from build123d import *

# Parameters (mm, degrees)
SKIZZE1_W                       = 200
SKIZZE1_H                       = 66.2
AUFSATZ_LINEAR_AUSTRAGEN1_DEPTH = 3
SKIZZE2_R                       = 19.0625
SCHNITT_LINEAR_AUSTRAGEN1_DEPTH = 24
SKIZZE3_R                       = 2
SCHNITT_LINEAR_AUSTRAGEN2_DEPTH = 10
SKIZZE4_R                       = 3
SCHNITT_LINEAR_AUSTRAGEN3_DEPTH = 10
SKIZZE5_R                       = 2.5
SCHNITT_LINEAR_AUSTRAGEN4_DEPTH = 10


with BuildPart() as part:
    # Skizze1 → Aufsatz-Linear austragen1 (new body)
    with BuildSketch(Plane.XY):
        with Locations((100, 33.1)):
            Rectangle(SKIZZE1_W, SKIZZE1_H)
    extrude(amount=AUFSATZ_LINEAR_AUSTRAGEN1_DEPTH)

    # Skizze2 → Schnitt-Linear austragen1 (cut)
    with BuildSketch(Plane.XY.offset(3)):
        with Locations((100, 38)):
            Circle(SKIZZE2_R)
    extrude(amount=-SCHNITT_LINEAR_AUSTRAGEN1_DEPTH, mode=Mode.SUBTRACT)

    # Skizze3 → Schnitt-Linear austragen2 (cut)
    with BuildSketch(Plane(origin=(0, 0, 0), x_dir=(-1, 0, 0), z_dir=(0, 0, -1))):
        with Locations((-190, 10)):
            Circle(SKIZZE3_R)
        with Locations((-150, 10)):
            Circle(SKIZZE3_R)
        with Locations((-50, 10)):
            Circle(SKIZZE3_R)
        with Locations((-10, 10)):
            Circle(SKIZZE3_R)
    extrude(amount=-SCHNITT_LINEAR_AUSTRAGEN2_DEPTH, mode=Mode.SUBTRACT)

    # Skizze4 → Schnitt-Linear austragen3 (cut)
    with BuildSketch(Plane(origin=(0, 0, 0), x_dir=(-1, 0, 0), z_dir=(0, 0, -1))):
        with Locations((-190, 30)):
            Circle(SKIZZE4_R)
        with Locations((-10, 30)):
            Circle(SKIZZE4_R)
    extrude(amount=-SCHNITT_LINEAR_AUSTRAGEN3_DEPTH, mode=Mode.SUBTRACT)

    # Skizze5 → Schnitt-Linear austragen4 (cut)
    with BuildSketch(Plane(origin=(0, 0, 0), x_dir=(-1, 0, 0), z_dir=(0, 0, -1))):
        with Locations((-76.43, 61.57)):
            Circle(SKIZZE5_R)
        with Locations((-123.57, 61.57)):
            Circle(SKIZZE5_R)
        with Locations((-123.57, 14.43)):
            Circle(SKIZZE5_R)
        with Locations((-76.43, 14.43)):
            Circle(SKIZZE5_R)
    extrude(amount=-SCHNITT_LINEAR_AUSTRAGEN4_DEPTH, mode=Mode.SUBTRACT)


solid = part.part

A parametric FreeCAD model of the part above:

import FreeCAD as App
import Part
import Sketcher

doc = App.newDocument("Part")
body = doc.addObject("PartDesign::Body", "Body")

# Sketch on XY plane
sketch1 = doc.addObject("Sketcher::SketchObject", "Sketch")
body.addObject(sketch1)
sketch1.AttachmentSupport = (doc.XY_Plane, [""])
sketch1.MapMode = "FlatFace"
sketch1.addGeometry([
    Part.LineSegment(App.Vector(0, 66, 0), App.Vector(0, 0, 0)),
    Part.LineSegment(App.Vector(0, 0, 0), App.Vector(200, 0, 0)),
    Part.LineSegment(App.Vector(200, 0, 0), App.Vector(200, 66, 0)),
    Part.LineSegment(App.Vector(200, 66, 0), App.Vector(0, 66, 0)),
], False)
sketch1.addConstraint([
    Sketcher.Constraint("Coincident", 0, 2, 1, 1),
    Sketcher.Constraint("Coincident", 1, 2, 2, 1),
    Sketcher.Constraint("Coincident", 2, 2, 3, 1),
    Sketcher.Constraint("Coincident", 3, 2, 0, 1),
    Sketcher.Constraint("Vertical", 0),
    Sketcher.Constraint("Horizontal", 1),
    Sketcher.Constraint("Vertical", 2),
    Sketcher.Constraint("Horizontal", 3),
    Sketcher.Constraint("Coincident", 0, 2, -1, 1),
    Sketcher.Constraint("DistanceX", 1, 1, 1, 2, 200.0),
    Sketcher.Constraint("DistanceY", 0, 2, 0, 1, 66.2),
])
pad1 = doc.addObject("PartDesign::Pad", "Pad")
body.addObject(pad1)
pad1.Profile = sketch1
pad1.Length = 3

# Sketch on XY plane
sketch2 = doc.addObject("Sketcher::SketchObject", "Sketch001")
body.addObject(sketch2)
sketch2.AttachmentSupport = (doc.XY_Plane, [""])
sketch2.MapMode = "FlatFace"
sketch2.AttachmentOffset = App.Placement(App.Vector(0, 0, 3), App.Rotation())
sketch2.addGeometry(Part.Circle(App.Vector(100, 38, 0), App.Vector(0, 0, 1), 19), False)
sketch2.addConstraint([
    Sketcher.Constraint("Diameter", 0, 38.125),
    Sketcher.Constraint("DistanceX", -1, 1, 0, 3, 100.0),
    Sketcher.Constraint("DistanceY", -1, 1, 0, 3, 38.0),
])
pocket1 = doc.addObject("PartDesign::Pocket", "Pocket")
body.addObject(pocket1)
pocket1.Profile = sketch2
pocket1.Length = 24

# Sketch on XY plane
sketch3 = doc.addObject("Sketcher::SketchObject", "Sketch002")
body.addObject(sketch3)
sketch3.AttachmentSupport = (doc.XY_Plane, [""])
sketch3.MapMode = "FlatFace"
sketch3.addGeometry([
    Part.Circle(App.Vector(190, 10, 0), App.Vector(0, 0, 1), 2),
    Part.Circle(App.Vector(150, 10, 0), App.Vector(0, 0, 1), 2),
    Part.Circle(App.Vector(50, 10, 0), App.Vector(0, 0, 1), 2),
    Part.Circle(App.Vector(10, 10, 0), App.Vector(0, 0, 1), 2),
], False)
sketch3.addConstraint([
    Sketcher.Constraint("Equal", 0, 1),
    Sketcher.Constraint("Equal", 1, 2),
    Sketcher.Constraint("Equal", 2, 3),
    Sketcher.Constraint("Horizontal", 0, 3, 1, 3),
    Sketcher.Constraint("Horizontal", 1, 3, 2, 3),
    Sketcher.Constraint("Horizontal", 2, 3, 3, 3),
    Sketcher.Constraint("Diameter", 0, 4.0),
    Sketcher.Constraint("DistanceX", -1, 1, 0, 3, 190.0),
    Sketcher.Constraint("DistanceY", -1, 1, 0, 3, 10.0),
    Sketcher.Constraint("DistanceX", -1, 1, 1, 3, 150.0),
    Sketcher.Constraint("DistanceX", -1, 1, 2, 3, 50.0),
    Sketcher.Constraint("DistanceX", -1, 1, 3, 3, 10.0),
])
pocket2 = doc.addObject("PartDesign::Pocket", "Pocket001")
body.addObject(pocket2)
pocket2.Profile = sketch3
pocket2.Length = 10
pocket2.Reversed = True

# Sketch on XY plane
sketch4 = doc.addObject("Sketcher::SketchObject", "Sketch003")
body.addObject(sketch4)
sketch4.AttachmentSupport = (doc.XY_Plane, [""])
sketch4.MapMode = "FlatFace"
sketch4.addGeometry([
    Part.Circle(App.Vector(190, 30, 0), App.Vector(0, 0, 1), 3),
    Part.Circle(App.Vector(10, 30, 0), App.Vector(0, 0, 1), 3),
], False)
sketch4.addConstraint([
    Sketcher.Constraint("Equal", 0, 1),
    Sketcher.Constraint("Horizontal", 0, 3, 1, 3),
    Sketcher.Constraint("Diameter", 0, 6.0),
    Sketcher.Constraint("DistanceX", -1, 1, 0, 3, 190.0),
    Sketcher.Constraint("DistanceY", -1, 1, 0, 3, 30.0),
    Sketcher.Constraint("DistanceX", -1, 1, 1, 3, 10.0),
])
pocket3 = doc.addObject("PartDesign::Pocket", "Pocket002")
body.addObject(pocket3)
pocket3.Profile = sketch4
pocket3.Length = 10
pocket3.Reversed = True

# Sketch on XY plane
sketch5 = doc.addObject("Sketcher::SketchObject", "Sketch004")
body.addObject(sketch5)
sketch5.AttachmentSupport = (doc.XY_Plane, [""])
sketch5.MapMode = "FlatFace"
sketch5.addGeometry([
    Part.Circle(App.Vector(76.4, 61.6, 0), App.Vector(0, 0, 1), 2.5),
    Part.Circle(App.Vector(123.6, 61.6, 0), App.Vector(0, 0, 1), 2.5),
    Part.Circle(App.Vector(123.6, 14.4, 0), App.Vector(0, 0, 1), 2.5),
    Part.Circle(App.Vector(76.4, 14.4, 0), App.Vector(0, 0, 1), 2.5),
], False)
sketch5.addConstraint([
    Sketcher.Constraint("Equal", 0, 1),
    Sketcher.Constraint("Equal", 1, 2),
    Sketcher.Constraint("Equal", 2, 3),
    Sketcher.Constraint("Horizontal", 0, 3, 1, 3),
    Sketcher.Constraint("Horizontal", 2, 3, 3, 3),
    Sketcher.Constraint("Vertical", 1, 3, 2, 3),
    Sketcher.Constraint("Vertical", 0, 3, 3, 3),
    Sketcher.Constraint("Diameter", 0, 5.0),
    Sketcher.Constraint("DistanceX", -1, 1, 0, 3, 76.43),
    Sketcher.Constraint("DistanceY", -1, 1, 0, 3, 61.57),
    Sketcher.Constraint("DistanceX", -1, 1, 1, 3, 123.57),
    Sketcher.Constraint("DistanceY", -1, 1, 2, 3, 14.43),
])
pocket4 = doc.addObject("PartDesign::Pocket", "Pocket003")
body.addObject(pocket4)
pocket4.Profile = sketch5
pocket4.Length = 10
pocket4.Reversed = True

doc.recompute()
